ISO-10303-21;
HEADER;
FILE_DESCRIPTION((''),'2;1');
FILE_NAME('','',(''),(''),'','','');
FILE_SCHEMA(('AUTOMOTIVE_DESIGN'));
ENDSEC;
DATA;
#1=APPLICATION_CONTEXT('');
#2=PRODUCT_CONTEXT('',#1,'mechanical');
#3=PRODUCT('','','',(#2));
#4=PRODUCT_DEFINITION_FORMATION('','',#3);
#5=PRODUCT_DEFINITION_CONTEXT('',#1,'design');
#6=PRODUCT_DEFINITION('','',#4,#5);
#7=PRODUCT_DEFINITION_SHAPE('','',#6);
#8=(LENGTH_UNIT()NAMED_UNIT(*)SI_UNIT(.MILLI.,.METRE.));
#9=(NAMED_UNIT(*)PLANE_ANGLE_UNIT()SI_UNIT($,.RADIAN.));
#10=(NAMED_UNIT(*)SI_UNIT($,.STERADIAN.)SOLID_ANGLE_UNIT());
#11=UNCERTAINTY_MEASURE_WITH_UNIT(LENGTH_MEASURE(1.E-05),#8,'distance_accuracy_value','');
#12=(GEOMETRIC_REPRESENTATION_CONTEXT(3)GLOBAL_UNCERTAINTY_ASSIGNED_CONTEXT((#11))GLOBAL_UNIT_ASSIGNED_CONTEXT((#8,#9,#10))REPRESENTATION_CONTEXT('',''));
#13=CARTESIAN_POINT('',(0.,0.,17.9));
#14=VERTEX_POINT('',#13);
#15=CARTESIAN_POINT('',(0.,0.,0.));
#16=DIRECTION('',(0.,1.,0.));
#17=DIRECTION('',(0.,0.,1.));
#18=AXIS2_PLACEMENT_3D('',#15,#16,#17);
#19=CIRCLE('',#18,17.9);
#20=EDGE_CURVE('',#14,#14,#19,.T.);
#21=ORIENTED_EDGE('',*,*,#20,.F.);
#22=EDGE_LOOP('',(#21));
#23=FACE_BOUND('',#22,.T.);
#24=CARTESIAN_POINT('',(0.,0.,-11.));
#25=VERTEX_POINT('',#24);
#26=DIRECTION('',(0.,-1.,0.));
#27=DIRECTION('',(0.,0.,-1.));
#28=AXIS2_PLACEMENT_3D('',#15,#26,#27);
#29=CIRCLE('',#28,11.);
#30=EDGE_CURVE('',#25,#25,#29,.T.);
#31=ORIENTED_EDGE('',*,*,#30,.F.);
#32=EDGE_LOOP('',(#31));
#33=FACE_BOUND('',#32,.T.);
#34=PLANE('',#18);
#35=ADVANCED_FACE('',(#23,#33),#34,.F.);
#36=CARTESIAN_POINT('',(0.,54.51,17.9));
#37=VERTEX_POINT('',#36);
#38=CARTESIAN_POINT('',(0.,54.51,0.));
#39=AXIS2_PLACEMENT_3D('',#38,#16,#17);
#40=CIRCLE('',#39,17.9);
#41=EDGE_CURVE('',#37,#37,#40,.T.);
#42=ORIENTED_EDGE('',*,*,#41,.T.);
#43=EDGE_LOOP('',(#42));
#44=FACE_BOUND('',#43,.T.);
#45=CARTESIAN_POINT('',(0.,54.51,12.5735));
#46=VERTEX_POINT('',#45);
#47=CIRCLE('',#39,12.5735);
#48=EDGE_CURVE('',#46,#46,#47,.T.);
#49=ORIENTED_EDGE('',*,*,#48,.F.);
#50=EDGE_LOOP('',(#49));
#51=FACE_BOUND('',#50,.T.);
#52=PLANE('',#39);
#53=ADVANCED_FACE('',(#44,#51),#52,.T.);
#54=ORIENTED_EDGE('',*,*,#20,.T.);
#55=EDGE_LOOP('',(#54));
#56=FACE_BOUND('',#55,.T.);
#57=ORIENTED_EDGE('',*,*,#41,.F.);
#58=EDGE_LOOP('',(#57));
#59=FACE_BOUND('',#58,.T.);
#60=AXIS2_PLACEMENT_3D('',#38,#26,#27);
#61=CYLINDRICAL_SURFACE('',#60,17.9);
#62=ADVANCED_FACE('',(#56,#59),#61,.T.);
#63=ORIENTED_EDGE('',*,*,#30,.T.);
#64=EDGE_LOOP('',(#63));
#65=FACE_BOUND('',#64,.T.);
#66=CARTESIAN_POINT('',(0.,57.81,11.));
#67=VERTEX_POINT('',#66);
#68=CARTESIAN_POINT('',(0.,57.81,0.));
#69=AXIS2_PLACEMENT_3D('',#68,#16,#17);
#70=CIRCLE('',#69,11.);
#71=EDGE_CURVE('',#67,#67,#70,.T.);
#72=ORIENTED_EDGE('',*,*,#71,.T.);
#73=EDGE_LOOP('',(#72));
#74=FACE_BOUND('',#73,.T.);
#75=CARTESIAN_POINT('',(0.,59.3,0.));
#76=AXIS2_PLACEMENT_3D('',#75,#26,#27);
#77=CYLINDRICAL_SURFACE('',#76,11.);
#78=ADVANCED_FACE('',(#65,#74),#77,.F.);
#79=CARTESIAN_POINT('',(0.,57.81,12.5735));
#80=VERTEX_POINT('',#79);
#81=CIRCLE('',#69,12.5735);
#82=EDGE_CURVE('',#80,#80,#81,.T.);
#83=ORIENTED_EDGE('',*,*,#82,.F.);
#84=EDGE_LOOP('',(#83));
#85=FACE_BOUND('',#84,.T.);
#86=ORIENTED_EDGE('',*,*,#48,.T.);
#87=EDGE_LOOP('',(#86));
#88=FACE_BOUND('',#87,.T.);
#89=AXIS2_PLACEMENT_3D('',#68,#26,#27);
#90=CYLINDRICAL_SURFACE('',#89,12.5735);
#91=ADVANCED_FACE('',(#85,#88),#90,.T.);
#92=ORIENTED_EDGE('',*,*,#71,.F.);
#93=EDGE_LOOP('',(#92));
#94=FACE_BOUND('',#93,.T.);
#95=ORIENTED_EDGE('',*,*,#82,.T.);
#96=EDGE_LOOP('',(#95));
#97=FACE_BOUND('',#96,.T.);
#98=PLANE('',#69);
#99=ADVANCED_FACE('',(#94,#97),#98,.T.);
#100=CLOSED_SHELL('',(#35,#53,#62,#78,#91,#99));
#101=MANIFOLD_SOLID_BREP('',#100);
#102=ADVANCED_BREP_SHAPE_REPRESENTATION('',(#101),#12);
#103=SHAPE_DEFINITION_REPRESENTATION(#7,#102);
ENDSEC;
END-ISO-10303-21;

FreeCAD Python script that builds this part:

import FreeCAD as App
import Part
import Sketcher

V = App.Vector
Q = App.Units.Quantity

doc = App.newDocument("Part")
body = doc.addObject("PartDesign::Body", "Body")

# Sketch on XZ plane
sketch1 = doc.addObject("Sketcher::SketchObject", "Sketch")
body.addObject(sketch1)
sketch1.AttachmentSupport = (doc.XZ_Plane, [""])
sketch1.MapMode = "FlatFace"
sketch1.addGeometry(Part.Circle(V(0, 0, 0), V(0, 0, 1), 17.9), False)
sketch1.addConstraint(Sketcher.Constraint("Coincident", 0, 3, -1, 1))
sketch1.addConstraint(Sketcher.Constraint("Diameter", 0, Q("35.8 mm")))
pad1 = doc.addObject("PartDesign::Pad", "Pad")
body.addObject(pad1)
pad1.Profile = sketch1
pad1.Length = 54.51
pad1.Reversed = True

# Sketch on XZ plane
sketch2 = doc.addObject("Sketcher::SketchObject", "Sketch001")
body.addObject(sketch2)
sketch2.AttachmentSupport = (doc.XZ_Plane, [""])
sketch2.MapMode = "FlatFace"
sketch2.AttachmentOffset = App.Placement(V(0, 0, -54.51), App.Rotation())
sketch2.addGeometry(Part.Circle(V(0, 0, 0), V(0, 0, 1), 12.5735), False)
sketch2.addConstraint(Sketcher.Constraint("Coincident", 0, 3, -1, 1))
sketch2.addConstraint(Sketcher.Constraint("Diameter", 0, Q("25.147 mm")))
pad2 = doc.addObject("PartDesign::Pad", "Pad001")
body.addObject(pad2)
pad2.Profile = sketch2
pad2.Length = 3.3
pad2.Reversed = True

# Sketch on XZ plane
sketch3 = doc.addObject("Sketcher::SketchObject", "Sketch002")
body.addObject(sketch3)
sketch3.AttachmentSupport = (doc.XZ_Plane, [""])
sketch3.MapMode = "FlatFace"
sketch3.addGeometry(Part.Circle(V(0, 0, 0), V(0, 0, 1), 11), False)
sketch3.addConstraint(Sketcher.Constraint("Coincident", 0, 3, -1, 1))
sketch3.addConstraint(Sketcher.Constraint("Diameter", 0, Q("22 mm")))
pocket1 = doc.addObject("PartDesign::Pocket", "Pocket")
body.addObject(pocket1)
pocket1.Profile = sketch3
pocket1.Length = 59.3

doc.recompute()
